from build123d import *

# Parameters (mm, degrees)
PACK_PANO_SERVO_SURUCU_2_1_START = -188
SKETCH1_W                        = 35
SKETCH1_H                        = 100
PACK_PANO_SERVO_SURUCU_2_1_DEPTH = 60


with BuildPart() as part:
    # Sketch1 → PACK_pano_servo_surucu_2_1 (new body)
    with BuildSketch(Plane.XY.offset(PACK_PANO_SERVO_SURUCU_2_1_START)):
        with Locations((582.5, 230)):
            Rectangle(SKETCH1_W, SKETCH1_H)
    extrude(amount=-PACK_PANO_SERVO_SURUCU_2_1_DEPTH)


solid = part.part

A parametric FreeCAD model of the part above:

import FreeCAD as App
import Part
import Sketcher
from FreeCAD import Vector
Q = App.Units.Quantity

doc = App.newDocument("Part")
body = doc.addObject("PartDesign::Body", "Body")

# Sketch on XY plane
sketch1 = body.newObject("Sketcher::SketchObject", "Sketch")
sketch1.AttachmentSupport = (doc.getObject("XY_Plane"), [""])
sketch1.MapMode = "FlatFace"
sketch1.AttachmentOffset = App.Placement(Vector(0, 0, -188), App.Rotation())
sketch1.addGeometry([
    Part.LineSegment(Vector(565, 280, 0), Vector(565, 180, 0)),
    Part.LineSegment(Vector(565, 180, 0), Vector(600, 180, 0)),
    Part.LineSegment(Vector(600, 180, 0), Vector(600, 280, 0)),
    Part.LineSegment(Vector(600, 280, 0), Vector(565, 280, 0)),
], False)
sketch1.addConstraint([
    Sketcher.Constraint("Coincident", 0, 2, 1, 1),
    Sketcher.Constraint("Coincident", 1, 2, 2, 1),
    Sketcher.Constraint("Coincident", 2, 2, 3, 1),
    Sketcher.Constraint("Coincident", 3, 2, 0, 1),
    Sketcher.Constraint("Vertical", 0),
    Sketcher.Constraint("Horizontal", 1),
    Sketcher.Constraint("Vertical", 2),
    Sketcher.Constraint("Horizontal", 3),
    Sketcher.Constraint("DistanceX", 1, 1, 1, 2, Q("35 mm")),
    Sketcher.Constraint("DistanceY", 0, 2, 0, 1, Q("100 mm")),
    Sketcher.Constraint("DistanceX", -1, 1, 0, 2, Q("565 mm")),
    Sketcher.Constraint("DistanceY", -1, 1, 0, 2, Q("180 mm")),
])
pad1 = body.newObject("PartDesign::Pad", "Pad")
pad1.Profile = sketch1
pad1.Length = 60
pad1.Reversed = True

doc.recompute()
